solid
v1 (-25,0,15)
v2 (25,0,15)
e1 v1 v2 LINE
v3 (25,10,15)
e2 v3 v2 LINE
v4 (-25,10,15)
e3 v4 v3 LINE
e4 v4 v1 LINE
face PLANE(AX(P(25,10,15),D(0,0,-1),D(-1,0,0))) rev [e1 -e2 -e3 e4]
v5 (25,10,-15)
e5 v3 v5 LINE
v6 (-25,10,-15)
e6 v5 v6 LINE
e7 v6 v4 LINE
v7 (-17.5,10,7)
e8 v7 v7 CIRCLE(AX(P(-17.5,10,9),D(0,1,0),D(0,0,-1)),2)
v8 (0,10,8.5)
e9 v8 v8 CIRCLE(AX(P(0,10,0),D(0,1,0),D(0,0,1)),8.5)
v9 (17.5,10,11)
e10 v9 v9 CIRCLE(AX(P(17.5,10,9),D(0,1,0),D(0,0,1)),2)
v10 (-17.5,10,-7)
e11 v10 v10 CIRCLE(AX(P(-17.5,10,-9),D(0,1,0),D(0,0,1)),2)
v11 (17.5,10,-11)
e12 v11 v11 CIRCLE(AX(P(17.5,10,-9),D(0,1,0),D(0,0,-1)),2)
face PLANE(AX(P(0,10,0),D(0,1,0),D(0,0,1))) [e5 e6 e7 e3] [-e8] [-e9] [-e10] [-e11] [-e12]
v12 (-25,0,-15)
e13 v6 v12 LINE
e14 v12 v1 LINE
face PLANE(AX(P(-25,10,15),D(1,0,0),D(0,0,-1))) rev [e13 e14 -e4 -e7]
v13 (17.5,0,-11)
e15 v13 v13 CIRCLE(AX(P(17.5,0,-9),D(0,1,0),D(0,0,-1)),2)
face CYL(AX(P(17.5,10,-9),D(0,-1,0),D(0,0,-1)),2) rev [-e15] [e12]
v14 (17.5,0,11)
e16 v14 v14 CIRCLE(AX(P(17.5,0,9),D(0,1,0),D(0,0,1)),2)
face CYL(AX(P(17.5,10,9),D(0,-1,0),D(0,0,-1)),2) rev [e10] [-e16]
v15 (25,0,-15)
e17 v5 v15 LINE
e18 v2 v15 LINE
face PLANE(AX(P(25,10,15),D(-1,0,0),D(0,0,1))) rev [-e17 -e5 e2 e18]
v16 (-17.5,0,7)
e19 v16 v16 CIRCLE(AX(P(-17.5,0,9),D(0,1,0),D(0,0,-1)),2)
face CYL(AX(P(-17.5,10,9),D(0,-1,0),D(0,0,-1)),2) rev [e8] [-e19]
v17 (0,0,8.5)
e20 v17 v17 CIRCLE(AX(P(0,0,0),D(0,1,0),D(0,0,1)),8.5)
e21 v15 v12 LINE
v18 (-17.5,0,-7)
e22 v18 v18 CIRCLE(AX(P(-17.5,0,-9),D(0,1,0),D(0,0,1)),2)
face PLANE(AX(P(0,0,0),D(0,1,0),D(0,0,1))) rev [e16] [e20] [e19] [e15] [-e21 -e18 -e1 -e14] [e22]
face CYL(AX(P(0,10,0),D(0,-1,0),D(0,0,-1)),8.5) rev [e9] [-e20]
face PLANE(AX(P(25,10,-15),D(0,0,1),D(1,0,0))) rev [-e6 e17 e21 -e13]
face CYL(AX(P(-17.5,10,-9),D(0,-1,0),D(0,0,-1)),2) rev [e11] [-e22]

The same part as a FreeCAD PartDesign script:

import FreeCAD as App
import Part
import Sketcher

doc = App.newDocument("Part")
params = doc.addObject("Spreadsheet::Sheet", "Params")
for row, (alias, value) in enumerate([
    ("sketch1_diameter", "4 mm"),
    ("sketch1_diameter2", "17 mm"),
    ("sketch1_width", "50 mm"),
    ("sketch1_height", "30 mm"),
    ("pad1_length", "10 mm"),
], start=1):
    params.set(f"A{row}", alias)
    params.set(f"B{row}", "=" + value)
    params.setAlias(f"B{row}", alias)

body = doc.addObject("PartDesign::Body", "Body")

# Sketch on XZ plane
sketch1 = body.newObject("Sketcher::SketchObject", "Sketch")
sketch1.AttachmentSupport = (doc.getObject("XZ_Plane"), [""])
sketch1.MapMode = "FlatFace"
sketch1.addGeometry([
    Part.LineSegment(App.Vector(-25, -15, 0), App.Vector(-25, 15, 0)),  # 0
    Part.LineSegment(App.Vector(-25, 15, 0), App.Vector(25, 15, 0)),  # 1
    Part.LineSegment(App.Vector(25, 15, 0), App.Vector(25, -15, 0)),  # 2
    Part.LineSegment(App.Vector(25, -15, 0), App.Vector(-25, -15, 0)),  # 3
    Part.Circle(App.Vector(-17.5, 9, 0), App.Vector(0, 0, 1), 2),  # 4
    Part.Circle(App.Vector(17.5, 9, 0), App.Vector(0, 0, 1), 2),  # 5
    Part.Circle(App.Vector(-17.5, -9, 0), App.Vector(0, 0, 1), 2),  # 6
    Part.Circle(App.Vector(0, 0, 0), App.Vector(0, 0, 1), 8.5),  # 7
    Part.Circle(App.Vector(17.5, -9, 0), App.Vector(0, 0, 1), 2),  # 8
], False)
sketch1.addConstraint([
    Sketcher.Constraint("Coincident", 0, 2, 1, 1),
    Sketcher.Constraint("Coincident", 1, 2, 2, 1),
    Sketcher.Constraint("Coincident", 2, 2, 3, 1),
    Sketcher.Constraint("Coincident", 3, 2, 0, 1),
    Sketcher.Constraint("Vertical", 0),
    Sketcher.Constraint("Horizontal", 1),
    Sketcher.Constraint("Vertical", 2),
    Sketcher.Constraint("Horizontal", 3),
    Sketcher.Constraint("Coincident", 7, 3, -1, 1),
    Sketcher.Constraint("Equal", 4, 5),
    Sketcher.Constraint("Equal", 5, 6),
    Sketcher.Constraint("Equal", 6, 8),
    Sketcher.Constraint("Symmetric", 5, 3, 6, 3, -1, 1),
    Sketcher.Constraint("Symmetric", 4, 3, 8, 3, -1, 1),
    Sketcher.Constraint("Symmetric", 0, 2, 2, 2, -1, 1),
    Sketcher.Constraint("Symmetric", 4, 3, 5, 3, -2),
    Sketcher.Constraint("Diameter", 4, 4.0),
    Sketcher.Constraint("Diameter", 7, 17.0),
    Sketcher.Constraint("DistanceX", 1, 1, 1, 2, 50.0),
    Sketcher.Constraint("DistanceY", 0, 1, 0, 2, 30.0),
    Sketcher.Constraint("DistanceY", -1, 1, 4, 3, 9.0),
    Sketcher.Constraint("DistanceX", 4, 3, 5, 3, 35.0),
])
sketch1.setExpression("Constraints[16]", "Params.sketch1_diameter")
sketch1.setExpression("Constraints[17]", "Params.sketch1_diameter2")
sketch1.setExpression("Constraints[18]", "Params.sketch1_width")
sketch1.setExpression("Constraints[19]", "Params.sketch1_height")
pad1 = body.newObject("PartDesign::Pad", "Pad")
pad1.Profile = sketch1
pad1.setExpression("Length", "Params.pad1_length")
pad1.Reversed = True

doc.recompute()
